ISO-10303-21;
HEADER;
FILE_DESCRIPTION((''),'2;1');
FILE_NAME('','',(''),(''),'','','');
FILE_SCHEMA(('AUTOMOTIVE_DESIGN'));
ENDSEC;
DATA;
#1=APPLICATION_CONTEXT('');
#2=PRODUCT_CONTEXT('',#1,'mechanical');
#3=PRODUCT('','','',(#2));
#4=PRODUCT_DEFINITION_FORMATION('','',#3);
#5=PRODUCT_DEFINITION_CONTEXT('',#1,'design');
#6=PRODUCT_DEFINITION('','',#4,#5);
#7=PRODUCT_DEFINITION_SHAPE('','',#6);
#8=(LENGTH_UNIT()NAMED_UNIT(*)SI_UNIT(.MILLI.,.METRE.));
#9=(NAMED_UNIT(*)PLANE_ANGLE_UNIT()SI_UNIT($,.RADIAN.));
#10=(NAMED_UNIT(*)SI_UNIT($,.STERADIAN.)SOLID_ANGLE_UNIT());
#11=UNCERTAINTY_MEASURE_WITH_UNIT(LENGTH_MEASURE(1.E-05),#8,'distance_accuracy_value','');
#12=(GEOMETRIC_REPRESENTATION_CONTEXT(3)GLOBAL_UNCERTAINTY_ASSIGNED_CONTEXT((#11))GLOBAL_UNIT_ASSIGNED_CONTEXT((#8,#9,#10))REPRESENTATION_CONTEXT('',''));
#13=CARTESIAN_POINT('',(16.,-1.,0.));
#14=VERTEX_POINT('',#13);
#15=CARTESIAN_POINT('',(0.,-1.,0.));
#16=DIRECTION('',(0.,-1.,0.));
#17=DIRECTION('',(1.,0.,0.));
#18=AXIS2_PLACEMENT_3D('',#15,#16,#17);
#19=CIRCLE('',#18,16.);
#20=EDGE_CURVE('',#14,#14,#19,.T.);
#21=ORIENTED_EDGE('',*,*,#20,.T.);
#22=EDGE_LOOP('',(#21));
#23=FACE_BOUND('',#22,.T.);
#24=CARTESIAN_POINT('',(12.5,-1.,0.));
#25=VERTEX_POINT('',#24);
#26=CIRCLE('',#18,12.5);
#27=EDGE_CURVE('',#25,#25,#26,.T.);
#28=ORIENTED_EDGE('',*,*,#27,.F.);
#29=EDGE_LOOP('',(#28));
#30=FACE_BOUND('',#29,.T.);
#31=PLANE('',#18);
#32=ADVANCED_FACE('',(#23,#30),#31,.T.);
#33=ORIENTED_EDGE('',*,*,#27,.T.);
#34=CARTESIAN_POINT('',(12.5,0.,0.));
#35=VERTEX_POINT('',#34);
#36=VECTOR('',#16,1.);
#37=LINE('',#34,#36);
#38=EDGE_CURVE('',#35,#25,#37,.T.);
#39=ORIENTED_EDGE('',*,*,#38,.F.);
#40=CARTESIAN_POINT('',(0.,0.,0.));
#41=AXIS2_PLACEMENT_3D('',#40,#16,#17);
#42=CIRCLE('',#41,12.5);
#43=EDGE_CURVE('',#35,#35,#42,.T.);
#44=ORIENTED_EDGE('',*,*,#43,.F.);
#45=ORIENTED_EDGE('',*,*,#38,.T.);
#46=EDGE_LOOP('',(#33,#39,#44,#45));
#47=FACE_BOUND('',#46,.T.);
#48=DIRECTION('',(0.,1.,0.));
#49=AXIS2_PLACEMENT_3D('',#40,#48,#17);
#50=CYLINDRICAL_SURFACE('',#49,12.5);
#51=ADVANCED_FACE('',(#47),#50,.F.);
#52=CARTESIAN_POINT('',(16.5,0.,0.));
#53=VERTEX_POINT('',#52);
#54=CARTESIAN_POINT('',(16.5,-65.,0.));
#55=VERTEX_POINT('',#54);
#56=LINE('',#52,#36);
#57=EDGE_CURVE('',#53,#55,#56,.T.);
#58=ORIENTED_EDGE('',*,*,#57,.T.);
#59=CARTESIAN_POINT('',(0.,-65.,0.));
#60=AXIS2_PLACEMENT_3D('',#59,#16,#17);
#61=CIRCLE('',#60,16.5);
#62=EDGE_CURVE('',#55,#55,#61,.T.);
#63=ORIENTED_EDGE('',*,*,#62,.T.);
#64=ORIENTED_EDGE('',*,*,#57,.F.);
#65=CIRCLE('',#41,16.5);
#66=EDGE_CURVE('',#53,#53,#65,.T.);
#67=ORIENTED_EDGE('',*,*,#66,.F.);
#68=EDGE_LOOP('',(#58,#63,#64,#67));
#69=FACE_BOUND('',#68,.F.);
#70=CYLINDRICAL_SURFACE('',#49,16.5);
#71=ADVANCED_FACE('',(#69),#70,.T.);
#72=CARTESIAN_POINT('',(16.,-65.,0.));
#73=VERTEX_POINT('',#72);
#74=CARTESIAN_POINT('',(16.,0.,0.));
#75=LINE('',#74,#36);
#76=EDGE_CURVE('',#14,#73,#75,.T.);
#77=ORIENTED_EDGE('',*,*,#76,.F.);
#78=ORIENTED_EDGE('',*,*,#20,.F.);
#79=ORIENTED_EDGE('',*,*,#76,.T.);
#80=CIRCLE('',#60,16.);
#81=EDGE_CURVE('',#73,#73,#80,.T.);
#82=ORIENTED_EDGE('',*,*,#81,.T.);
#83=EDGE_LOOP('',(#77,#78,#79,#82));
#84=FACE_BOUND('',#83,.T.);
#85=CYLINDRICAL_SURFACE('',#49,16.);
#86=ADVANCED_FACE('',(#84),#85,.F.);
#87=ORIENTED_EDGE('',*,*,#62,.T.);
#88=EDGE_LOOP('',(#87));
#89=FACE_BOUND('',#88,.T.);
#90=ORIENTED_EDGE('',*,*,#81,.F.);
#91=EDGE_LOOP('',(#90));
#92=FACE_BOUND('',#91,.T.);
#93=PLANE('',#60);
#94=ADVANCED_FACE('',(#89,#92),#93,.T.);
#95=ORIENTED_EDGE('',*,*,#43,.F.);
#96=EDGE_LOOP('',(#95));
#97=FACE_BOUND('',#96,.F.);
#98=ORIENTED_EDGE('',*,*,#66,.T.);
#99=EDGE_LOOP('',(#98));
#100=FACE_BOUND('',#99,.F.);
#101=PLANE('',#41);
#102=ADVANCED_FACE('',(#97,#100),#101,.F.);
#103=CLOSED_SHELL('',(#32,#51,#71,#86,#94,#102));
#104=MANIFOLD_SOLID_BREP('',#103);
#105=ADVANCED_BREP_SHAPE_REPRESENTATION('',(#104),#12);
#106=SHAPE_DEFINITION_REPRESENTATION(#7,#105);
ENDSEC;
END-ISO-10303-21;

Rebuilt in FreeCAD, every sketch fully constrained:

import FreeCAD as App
import Part
import Sketcher

V = App.Vector

doc = App.newDocument("Part")
body = doc.addObject("PartDesign::Body", "Body")

# Sketch on XZ plane
sketch1 = body.newObject("Sketcher::SketchObject", "Sketch")
sketch1.AttachmentSupport = (doc.getObject("XZ_Plane"), [""])
sketch1.MapMode = "FlatFace"
sketch1.addGeometry(Part.Circle(V(0, 0, 0), V(0, 0, 1), 16), False)
sketch1.addGeometry(Part.Circle(V(0, 0, 0), V(0, 0, 1), 16), False)
sketch1.addConstraint(Sketcher.Constraint("Coincident", 0, 3, -1, 1))
sketch1.addConstraint(Sketcher.Constraint("Coincident", 1, 3, -1, 1))
sketch1.addConstraint(Sketcher.Constraint("Diameter", 0, 33.0))
sketch1.addConstraint(Sketcher.Constraint("Diameter", 1, 32.0))
pad1 = body.newObject("PartDesign::Pad", "Pad")
pad1.Profile = sketch1
pad1.Length = 65

# Sketch on XZ plane
sketch2 = body.newObject("Sketcher::SketchObject", "Sketch001")
sketch2.AttachmentSupport = (doc.getObject("XZ_Plane"), [""])
sketch2.MapMode = "FlatFace"
sketch2.addGeometry(Part.Circle(V(0, 0, 0), V(0, 0, 1), 16), False)
sketch2.addGeometry(Part.Circle(V(0, 0, 0), V(0, 0, 1), 12), False)
sketch2.addConstraint(Sketcher.Constraint("Coincident", 0, 3, -1, 1))
sketch2.addConstraint(Sketcher.Constraint("Coincident", 1, 3, -1, 1))
sketch2.addConstraint(Sketcher.Constraint("Diameter", 0, 32.0))
sketch2.addConstraint(Sketcher.Constraint("Diameter", 1, 25.0))
pad2 = body.newObject("PartDesign::Pad", "Pad001")
pad2.Profile = sketch2
pad2.Length = 1

doc.recompute()
